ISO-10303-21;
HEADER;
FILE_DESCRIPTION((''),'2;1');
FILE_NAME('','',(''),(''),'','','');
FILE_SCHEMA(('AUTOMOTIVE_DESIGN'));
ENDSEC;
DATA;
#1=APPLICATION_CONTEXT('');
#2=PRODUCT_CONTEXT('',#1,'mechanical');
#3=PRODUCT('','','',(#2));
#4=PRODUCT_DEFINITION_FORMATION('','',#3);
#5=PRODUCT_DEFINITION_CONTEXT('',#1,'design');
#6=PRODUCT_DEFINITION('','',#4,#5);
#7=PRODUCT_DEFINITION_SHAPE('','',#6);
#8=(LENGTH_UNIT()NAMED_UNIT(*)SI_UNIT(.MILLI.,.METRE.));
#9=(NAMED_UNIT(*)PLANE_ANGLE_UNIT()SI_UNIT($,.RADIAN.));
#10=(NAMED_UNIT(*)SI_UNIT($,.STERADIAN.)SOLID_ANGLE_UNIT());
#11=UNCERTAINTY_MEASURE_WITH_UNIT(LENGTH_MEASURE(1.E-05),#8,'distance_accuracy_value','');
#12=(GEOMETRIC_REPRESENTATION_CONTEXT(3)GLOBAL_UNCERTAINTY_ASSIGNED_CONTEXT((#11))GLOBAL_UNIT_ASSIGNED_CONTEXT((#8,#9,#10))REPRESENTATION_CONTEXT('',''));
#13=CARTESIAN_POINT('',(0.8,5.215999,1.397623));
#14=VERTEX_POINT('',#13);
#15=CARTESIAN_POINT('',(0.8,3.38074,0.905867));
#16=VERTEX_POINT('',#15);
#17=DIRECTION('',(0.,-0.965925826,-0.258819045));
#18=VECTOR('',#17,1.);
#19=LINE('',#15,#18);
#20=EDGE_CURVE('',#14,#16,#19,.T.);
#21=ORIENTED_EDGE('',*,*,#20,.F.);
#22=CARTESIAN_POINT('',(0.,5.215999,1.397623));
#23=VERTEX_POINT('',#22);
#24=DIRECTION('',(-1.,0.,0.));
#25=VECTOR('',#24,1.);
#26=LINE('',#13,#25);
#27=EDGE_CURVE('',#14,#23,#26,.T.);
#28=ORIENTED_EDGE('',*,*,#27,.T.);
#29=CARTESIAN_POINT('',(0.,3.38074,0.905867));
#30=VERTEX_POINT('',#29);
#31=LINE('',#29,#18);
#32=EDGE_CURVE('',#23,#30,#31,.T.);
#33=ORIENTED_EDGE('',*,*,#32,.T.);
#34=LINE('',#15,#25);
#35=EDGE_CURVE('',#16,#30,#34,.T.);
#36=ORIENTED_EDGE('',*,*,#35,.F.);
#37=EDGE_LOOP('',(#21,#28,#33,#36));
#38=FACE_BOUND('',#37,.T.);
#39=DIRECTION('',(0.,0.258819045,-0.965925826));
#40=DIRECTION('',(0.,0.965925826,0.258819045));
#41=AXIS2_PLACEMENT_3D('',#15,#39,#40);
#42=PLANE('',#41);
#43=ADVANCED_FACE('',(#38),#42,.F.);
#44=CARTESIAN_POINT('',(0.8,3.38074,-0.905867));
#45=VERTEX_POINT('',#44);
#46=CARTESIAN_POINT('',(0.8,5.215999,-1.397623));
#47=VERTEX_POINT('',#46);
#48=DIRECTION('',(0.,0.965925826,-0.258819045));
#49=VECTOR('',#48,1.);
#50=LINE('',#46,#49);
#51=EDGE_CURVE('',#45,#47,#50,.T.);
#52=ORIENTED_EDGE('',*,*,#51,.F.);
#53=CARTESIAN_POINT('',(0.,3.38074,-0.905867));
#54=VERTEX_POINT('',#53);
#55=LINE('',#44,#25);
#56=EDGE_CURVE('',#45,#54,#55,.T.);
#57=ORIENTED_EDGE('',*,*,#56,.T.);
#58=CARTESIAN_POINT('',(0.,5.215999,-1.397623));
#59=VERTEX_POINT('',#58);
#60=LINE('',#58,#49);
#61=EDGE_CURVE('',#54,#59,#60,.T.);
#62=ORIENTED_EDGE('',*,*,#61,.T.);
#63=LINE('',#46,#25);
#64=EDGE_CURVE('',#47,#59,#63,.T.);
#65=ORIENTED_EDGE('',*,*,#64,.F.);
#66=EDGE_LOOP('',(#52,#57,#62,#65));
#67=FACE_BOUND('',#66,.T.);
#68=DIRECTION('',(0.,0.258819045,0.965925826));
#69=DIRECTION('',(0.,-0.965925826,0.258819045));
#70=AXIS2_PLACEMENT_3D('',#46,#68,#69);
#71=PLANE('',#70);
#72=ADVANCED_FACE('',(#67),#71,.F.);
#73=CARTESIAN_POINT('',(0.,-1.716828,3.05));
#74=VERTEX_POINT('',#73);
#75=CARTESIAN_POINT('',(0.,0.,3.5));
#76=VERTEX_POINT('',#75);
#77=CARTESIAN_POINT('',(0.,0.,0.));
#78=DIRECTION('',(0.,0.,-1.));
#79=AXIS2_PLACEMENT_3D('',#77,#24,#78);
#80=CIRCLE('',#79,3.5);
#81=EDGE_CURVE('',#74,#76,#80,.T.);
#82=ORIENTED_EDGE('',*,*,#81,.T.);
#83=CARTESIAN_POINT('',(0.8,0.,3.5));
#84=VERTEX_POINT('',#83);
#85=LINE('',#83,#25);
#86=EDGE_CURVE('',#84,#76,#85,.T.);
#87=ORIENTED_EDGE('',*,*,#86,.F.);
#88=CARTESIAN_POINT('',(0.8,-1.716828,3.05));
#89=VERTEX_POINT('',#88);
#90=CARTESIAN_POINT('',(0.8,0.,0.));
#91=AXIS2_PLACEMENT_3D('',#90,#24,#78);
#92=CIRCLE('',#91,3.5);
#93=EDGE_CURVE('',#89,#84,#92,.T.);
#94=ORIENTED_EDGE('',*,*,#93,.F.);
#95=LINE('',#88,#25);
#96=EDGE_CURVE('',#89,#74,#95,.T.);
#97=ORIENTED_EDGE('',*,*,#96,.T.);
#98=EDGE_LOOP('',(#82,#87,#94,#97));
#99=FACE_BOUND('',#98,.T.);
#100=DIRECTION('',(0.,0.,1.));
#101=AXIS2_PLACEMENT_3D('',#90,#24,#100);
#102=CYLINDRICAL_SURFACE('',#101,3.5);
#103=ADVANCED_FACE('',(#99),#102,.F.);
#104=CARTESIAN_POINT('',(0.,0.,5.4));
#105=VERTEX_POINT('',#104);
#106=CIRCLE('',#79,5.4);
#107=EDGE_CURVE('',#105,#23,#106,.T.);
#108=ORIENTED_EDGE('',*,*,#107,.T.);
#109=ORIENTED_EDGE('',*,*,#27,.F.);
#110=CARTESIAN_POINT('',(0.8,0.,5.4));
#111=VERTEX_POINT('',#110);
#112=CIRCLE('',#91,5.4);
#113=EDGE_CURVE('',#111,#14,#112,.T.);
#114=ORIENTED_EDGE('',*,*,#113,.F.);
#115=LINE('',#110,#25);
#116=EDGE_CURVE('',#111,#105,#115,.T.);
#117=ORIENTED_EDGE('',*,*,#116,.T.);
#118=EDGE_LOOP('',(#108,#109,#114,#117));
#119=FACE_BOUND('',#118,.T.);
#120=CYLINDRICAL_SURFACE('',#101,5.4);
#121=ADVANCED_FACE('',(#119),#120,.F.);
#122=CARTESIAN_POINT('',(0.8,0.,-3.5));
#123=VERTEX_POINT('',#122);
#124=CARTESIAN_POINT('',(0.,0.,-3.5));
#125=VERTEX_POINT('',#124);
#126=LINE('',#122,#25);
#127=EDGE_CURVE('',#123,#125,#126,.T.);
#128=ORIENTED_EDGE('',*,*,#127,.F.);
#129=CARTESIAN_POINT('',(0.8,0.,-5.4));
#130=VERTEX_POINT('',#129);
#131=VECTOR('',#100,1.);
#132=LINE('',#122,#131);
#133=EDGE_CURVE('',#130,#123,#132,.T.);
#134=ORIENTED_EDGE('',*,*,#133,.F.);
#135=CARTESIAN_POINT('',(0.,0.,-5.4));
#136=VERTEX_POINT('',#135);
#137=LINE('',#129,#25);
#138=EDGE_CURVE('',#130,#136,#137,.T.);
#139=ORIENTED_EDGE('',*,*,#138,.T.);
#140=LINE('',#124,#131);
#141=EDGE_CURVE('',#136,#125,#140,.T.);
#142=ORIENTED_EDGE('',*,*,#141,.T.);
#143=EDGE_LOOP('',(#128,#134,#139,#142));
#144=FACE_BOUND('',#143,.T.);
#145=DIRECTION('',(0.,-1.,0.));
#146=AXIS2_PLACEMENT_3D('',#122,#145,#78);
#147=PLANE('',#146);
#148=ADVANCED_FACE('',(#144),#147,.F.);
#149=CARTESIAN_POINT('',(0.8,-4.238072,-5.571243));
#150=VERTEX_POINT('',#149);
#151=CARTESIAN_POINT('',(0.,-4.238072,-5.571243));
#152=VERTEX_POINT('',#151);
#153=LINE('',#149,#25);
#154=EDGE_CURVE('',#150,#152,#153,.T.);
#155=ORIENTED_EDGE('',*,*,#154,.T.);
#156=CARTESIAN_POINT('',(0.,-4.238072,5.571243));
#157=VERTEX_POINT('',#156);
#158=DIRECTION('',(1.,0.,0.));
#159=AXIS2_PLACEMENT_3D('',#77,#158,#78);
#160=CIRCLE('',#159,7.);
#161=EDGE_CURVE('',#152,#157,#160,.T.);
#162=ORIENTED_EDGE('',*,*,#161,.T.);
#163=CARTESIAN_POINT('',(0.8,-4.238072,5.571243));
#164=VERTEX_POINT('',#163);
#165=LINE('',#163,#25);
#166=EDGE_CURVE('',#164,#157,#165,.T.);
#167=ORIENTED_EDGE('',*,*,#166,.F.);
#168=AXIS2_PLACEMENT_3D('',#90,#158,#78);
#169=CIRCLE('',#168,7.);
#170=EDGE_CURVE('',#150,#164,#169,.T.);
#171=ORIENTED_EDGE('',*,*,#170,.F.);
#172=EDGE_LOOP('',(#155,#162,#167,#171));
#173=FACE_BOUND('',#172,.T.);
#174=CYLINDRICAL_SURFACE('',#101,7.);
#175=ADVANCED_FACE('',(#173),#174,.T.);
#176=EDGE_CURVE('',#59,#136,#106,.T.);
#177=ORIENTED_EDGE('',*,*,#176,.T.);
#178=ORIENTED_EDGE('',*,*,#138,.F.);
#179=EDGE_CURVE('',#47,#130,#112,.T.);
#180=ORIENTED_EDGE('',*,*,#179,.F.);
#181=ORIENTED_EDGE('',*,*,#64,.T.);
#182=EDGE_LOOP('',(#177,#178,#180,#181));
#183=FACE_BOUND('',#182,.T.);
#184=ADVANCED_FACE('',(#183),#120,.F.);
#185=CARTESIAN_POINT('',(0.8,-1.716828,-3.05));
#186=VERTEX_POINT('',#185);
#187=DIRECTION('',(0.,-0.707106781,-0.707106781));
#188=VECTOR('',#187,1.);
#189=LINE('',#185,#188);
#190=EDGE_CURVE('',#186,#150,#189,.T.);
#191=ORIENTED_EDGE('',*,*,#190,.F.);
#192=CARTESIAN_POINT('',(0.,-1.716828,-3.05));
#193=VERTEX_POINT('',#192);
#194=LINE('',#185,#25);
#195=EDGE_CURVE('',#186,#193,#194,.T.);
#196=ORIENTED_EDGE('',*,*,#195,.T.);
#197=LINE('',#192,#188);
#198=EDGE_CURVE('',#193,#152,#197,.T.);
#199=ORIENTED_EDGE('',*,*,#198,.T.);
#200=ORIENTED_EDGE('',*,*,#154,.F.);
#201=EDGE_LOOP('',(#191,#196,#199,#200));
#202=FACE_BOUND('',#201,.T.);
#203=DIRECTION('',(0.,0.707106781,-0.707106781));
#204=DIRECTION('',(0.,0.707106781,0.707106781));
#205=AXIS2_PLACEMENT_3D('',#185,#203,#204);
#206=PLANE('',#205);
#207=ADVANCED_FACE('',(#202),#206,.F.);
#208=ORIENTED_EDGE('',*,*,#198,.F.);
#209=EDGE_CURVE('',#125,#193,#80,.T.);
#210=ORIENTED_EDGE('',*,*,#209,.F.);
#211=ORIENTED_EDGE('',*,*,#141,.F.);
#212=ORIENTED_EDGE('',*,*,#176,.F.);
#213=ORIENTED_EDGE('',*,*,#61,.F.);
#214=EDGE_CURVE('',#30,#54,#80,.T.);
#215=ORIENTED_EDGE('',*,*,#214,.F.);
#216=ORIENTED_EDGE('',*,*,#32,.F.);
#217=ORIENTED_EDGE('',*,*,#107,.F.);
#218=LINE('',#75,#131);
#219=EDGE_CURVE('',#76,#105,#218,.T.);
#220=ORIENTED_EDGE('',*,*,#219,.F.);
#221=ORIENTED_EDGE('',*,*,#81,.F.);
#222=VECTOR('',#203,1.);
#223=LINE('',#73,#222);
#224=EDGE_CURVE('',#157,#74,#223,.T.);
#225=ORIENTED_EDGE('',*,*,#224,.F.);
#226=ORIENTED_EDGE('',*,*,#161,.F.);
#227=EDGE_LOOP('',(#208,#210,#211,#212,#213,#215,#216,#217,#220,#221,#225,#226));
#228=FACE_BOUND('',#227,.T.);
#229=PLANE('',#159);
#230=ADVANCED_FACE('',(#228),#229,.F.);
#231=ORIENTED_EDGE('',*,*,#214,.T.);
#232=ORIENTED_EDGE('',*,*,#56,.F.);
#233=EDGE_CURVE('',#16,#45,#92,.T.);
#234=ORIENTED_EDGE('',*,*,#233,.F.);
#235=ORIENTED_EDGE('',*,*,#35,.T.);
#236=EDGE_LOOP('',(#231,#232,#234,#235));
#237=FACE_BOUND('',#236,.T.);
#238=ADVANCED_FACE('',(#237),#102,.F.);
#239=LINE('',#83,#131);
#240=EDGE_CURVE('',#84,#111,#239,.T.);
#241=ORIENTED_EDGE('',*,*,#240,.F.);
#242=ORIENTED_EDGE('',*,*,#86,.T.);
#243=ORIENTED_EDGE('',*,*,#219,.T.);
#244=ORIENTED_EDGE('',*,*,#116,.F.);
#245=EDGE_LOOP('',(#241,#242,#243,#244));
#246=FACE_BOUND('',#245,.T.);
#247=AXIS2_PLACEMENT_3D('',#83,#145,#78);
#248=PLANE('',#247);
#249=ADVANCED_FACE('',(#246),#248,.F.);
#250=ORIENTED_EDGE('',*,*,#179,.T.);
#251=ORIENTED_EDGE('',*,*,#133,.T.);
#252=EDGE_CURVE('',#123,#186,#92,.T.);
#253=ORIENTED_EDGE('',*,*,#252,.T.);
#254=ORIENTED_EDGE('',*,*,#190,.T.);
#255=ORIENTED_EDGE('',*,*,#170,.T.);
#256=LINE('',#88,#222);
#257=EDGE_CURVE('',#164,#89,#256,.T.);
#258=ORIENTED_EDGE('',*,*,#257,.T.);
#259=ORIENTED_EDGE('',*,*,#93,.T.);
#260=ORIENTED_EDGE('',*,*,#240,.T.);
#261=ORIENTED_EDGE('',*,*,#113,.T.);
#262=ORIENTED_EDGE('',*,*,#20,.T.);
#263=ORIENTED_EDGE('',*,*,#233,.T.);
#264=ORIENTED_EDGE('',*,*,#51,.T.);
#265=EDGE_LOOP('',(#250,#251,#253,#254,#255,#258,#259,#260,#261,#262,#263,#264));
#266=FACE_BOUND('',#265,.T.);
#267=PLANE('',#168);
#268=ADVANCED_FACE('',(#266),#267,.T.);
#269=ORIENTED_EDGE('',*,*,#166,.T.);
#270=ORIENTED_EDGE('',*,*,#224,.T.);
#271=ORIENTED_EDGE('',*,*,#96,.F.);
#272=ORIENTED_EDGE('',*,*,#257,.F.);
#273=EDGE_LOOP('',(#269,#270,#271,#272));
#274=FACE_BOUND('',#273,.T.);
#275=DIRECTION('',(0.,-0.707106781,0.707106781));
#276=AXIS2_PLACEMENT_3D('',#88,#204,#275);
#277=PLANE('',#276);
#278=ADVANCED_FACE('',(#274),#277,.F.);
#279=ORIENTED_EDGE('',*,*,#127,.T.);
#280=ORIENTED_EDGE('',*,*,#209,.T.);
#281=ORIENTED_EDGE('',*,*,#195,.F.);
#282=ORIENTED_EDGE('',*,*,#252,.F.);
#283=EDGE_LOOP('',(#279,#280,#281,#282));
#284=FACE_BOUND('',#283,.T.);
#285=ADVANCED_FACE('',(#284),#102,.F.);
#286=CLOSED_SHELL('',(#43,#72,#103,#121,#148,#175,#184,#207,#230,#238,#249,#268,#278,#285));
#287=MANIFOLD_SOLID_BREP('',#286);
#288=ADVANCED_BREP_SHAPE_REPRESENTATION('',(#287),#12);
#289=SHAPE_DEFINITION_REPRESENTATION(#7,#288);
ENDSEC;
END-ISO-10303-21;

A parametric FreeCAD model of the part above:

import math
import FreeCAD as App
import Part
import Sketcher
from FreeCAD import Vector
Q = App.Units.Quantity

doc = App.newDocument("Part")
body = doc.addObject("PartDesign::Body", "Body")

sketch1 = doc.addObject("Sketcher::SketchObject", "Sketch")
body.addObject(sketch1)
sketch1.AttachmentSupport = (doc.YZ_Plane, [""])
sketch1.MapMode = "FlatFace"
sketch1.addGeometry([
    Part.LineSegment(Vector(0, 3.5, 0), Vector(0, 5.4, 0)),
    Part.ArcOfCircle(Part.Circle(Vector(0, 0, 0), Vector(0, 0, 1), 5.4), math.radians(15), math.radians(90)),
    Part.LineSegment(Vector(5.2, 1.4, 0), Vector(3.4, 0.9, 0)),
    Part.ArcOfCircle(Part.Circle(Vector(0, 0, 0), Vector(0, 0, 1), 3.5), math.radians(-15), math.radians(15)),
    Part.LineSegment(Vector(3.4, -0.9, 0), Vector(5.2, -1.4, 0)),
    Part.ArcOfCircle(Part.Circle(Vector(0, 0, 0), Vector(0, 0, 1), 5.4), math.radians(-90), math.radians(-15)),
    Part.LineSegment(Vector(0, -5.4, 0), Vector(0, -3.5, 0)),
    Part.ArcOfCircle(Part.Circle(Vector(0, 0, 0), Vector(0, 0, 1), 3.5), math.radians(-119), math.radians(-90)),
    Part.LineSegment(Vector(-1.7, -3, 0), Vector(-4.2, -5.6, 0)),
    Part.ArcOfCircle(Part.Circle(Vector(0, 0, 0), Vector(0, 0, 1), 7), math.radians(-127), math.radians(127)),
    Part.LineSegment(Vector(-4.2, 5.6, 0), Vector(-1.7, 3, 0)),
    Part.ArcOfCircle(Part.Circle(Vector(0, 0, 0), Vector(0, 0, 1), 3.5), math.radians(90), math.radians(119)),
], False)
sketch1.addConstraint([
    Sketcher.Constraint("Coincident", 0, 2, 1, 2),
    Sketcher.Constraint("Coincident", 1, 1, 2, 1),
    Sketcher.Constraint("Coincident", 2, 2, 3, 2),
    Sketcher.Constraint("Coincident", 3, 1, 4, 1),
    Sketcher.Constraint("Coincident", 4, 2, 5, 2),
    Sketcher.Constraint("Coincident", 5, 1, 6, 1),
    Sketcher.Constraint("Coincident", 6, 2, 7, 2),
    Sketcher.Constraint("Coincident", 7, 1, 8, 1),
    Sketcher.Constraint("Coincident", 8, 2, 9, 1),
    Sketcher.Constraint("Coincident", 9, 2, 10, 1),
    Sketcher.Constraint("Coincident", 10, 2, 11, 2),
    Sketcher.Constraint("Coincident", 11, 1, 0, 1),
    Sketcher.Constraint("Vertical", 0),
    Sketcher.Constraint("Vertical", 6),
    Sketcher.Constraint("Coincident", 1, 3, -1, 1),
    Sketcher.Constraint("Coincident", 3, 3, -1, 1),
    Sketcher.Constraint("Coincident", 5, 3, -1, 1),
    Sketcher.Constraint("Coincident", 7, 3, -1, 1),
    Sketcher.Constraint("Coincident", 9, 3, -1, 1),
    Sketcher.Constraint("Coincident", 11, 3, -1, 1),
    Sketcher.Constraint("Equal", 1, 5),
    Sketcher.Constraint("Equal", 3, 7),
    Sketcher.Constraint("Equal", 7, 11),
    Sketcher.Constraint("PointOnObject", 0, 2, -2),
    Sketcher.Constraint("PointOnObject", 5, 1, -2),
    Sketcher.Constraint("Perpendicular", 8, 10),
    Sketcher.Constraint("Vertical", 2, 2, 3, 1),
    Sketcher.Constraint("Vertical", 1, 1, 4, 2),
    Sketcher.Constraint("Vertical", 8, 2, 9, 2),
    Sketcher.Constraint("Vertical", 7, 1, 10, 2),
    Sketcher.Constraint("Radius", 9, 7.0),
    Sketcher.Constraint("Radius", 1, 5.4),
    Sketcher.Constraint("Radius", 3, 3.5),
    Sketcher.Constraint("Angle", 2, Q("-165 deg")),
    Sketcher.Constraint("DistanceY", 7, 1, -1, 1, 3.05),
    Sketcher.Constraint("DistanceX", -1, 1, 1, 1, 5.215999),
])
pad1 = doc.addObject("PartDesign::Pad", "Pad")
body.addObject(pad1)
pad1.Profile = sketch1
pad1.Length = 0.8

doc.recompute()
